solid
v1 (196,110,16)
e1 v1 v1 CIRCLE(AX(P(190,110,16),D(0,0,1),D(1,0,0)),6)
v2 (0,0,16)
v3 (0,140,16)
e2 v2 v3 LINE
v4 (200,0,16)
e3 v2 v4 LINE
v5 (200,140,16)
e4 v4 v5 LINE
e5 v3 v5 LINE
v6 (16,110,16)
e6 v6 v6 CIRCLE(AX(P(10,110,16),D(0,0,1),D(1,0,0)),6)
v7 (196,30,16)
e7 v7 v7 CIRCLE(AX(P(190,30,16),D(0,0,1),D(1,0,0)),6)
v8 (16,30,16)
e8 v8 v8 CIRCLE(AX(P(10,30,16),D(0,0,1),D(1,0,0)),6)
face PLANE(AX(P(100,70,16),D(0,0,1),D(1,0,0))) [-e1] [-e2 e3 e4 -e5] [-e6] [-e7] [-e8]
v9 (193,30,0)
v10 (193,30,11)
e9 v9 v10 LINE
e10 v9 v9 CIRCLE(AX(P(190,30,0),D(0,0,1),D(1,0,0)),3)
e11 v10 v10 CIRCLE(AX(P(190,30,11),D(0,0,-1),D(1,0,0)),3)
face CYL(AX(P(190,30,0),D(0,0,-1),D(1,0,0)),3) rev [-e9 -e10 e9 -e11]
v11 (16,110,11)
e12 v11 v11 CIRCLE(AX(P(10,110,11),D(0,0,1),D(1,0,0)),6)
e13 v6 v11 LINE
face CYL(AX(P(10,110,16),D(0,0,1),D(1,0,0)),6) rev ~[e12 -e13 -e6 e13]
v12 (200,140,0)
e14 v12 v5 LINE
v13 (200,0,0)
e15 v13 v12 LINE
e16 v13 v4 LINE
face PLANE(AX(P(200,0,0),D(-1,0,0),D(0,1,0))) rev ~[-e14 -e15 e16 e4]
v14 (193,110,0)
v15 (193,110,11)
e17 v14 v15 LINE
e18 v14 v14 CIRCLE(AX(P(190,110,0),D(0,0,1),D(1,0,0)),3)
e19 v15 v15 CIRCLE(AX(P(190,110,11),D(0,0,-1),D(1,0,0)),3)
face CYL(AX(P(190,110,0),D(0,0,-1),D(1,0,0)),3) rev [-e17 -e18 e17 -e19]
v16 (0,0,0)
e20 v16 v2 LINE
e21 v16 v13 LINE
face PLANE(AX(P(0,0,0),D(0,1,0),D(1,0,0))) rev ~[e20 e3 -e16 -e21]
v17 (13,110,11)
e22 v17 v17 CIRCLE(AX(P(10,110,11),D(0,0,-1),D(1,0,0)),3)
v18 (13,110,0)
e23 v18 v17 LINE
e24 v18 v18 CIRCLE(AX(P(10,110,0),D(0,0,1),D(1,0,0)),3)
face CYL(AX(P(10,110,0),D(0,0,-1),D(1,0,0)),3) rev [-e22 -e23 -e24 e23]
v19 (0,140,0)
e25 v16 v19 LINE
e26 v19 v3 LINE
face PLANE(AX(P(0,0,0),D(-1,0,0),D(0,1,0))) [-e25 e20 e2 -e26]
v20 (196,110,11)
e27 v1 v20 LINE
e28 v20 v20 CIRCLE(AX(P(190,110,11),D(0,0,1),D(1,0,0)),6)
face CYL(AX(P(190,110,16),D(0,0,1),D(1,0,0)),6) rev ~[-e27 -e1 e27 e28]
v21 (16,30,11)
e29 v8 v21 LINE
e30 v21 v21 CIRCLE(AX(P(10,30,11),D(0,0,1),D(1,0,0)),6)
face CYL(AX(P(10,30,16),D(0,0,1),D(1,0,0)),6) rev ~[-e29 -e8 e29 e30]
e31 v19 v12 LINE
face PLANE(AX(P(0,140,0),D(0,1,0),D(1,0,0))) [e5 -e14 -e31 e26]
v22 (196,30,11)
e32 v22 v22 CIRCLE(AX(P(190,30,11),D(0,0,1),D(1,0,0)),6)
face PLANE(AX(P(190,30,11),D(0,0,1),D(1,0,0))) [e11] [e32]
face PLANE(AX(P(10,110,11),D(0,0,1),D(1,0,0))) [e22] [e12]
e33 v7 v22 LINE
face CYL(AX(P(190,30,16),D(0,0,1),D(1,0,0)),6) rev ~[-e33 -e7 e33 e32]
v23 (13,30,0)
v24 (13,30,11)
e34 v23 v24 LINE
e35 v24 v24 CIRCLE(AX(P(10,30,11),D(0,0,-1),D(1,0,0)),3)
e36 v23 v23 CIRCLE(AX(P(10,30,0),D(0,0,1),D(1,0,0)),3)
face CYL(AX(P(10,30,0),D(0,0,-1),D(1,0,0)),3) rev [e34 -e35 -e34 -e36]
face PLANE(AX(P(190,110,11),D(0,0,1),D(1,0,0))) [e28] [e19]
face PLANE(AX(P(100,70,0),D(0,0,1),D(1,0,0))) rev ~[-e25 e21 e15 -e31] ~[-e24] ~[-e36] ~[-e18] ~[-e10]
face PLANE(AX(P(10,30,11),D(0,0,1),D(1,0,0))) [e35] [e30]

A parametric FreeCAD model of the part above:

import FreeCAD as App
import Part
import Sketcher
from FreeCAD import Vector
Q = App.Units.Quantity

doc = App.newDocument("Part")
body = doc.addObject("PartDesign::Body", "Body")

sketch1 = body.newObject("Sketcher::SketchObject", "Sketch")
sketch1.AttachmentSupport = (doc.getObject("XY_Plane"), [""])
sketch1.MapMode = "FlatFace"
sketch1.addGeometry([
    Part.LineSegment(Vector(0, 140, 0), Vector(0, 0, 0)),
    Part.LineSegment(Vector(0, 0, 0), Vector(200, 0, 0)),
    Part.LineSegment(Vector(200, 0, 0), Vector(200, 140, 0)),
    Part.LineSegment(Vector(200, 140, 0), Vector(0, 140, 0)),
    Part.Circle(Vector(10, 30, 0), Vector(0, 0, 1), 3),
    Part.Circle(Vector(190, 30, 0), Vector(0, 0, 1), 3),
    Part.Circle(Vector(10, 110, 0), Vector(0, 0, 1), 3),
    Part.Circle(Vector(190, 110, 0), Vector(0, 0, 1), 3),
], False)
sketch1.addConstraint([
    Sketcher.Constraint("Coincident", 0, 2, 1, 1),
    Sketcher.Constraint("Coincident", 1, 2, 2, 1),
    Sketcher.Constraint("Coincident", 2, 2, 3, 1),
    Sketcher.Constraint("Coincident", 3, 2, 0, 1),
    Sketcher.Constraint("Vertical", 0),
    Sketcher.Constraint("Horizontal", 1),
    Sketcher.Constraint("Vertical", 2),
    Sketcher.Constraint("Horizontal", 3),
    Sketcher.Constraint("Coincident", 0, 2, -1, 1),
    Sketcher.Constraint("Equal", 4, 5),
    Sketcher.Constraint("Equal", 5, 6),
    Sketcher.Constraint("Equal", 6, 7),
    Sketcher.Constraint("Horizontal", 4, 3, 5, 3),
    Sketcher.Constraint("Horizontal", 6, 3, 7, 3),
    Sketcher.Constraint("Vertical", 4, 3, 6, 3),
    Sketcher.Constraint("Vertical", 5, 3, 7, 3),
    Sketcher.Constraint("Diameter", 4, Q("6 mm")),
    Sketcher.Constraint("DistanceX", 1, 1, 1, 2, Q("200 mm")),
    Sketcher.Constraint("DistanceY", 0, 2, 0, 1, Q("140 mm")),
    Sketcher.Constraint("DistanceX", -1, 1, 4, 3, Q("10 mm")),
    Sketcher.Constraint("DistanceY", -1, 1, 4, 3, Q("30 mm")),
    Sketcher.Constraint("DistanceX", -1, 1, 5, 3, Q("190 mm")),
    Sketcher.Constraint("DistanceY", -1, 1, 6, 3, Q("110 mm")),
])
pad1 = body.newObject("PartDesign::Pad", "Pad")
pad1.Profile = sketch1
pad1.Length = 16

sketch2 = body.newObject("Sketcher::SketchObject", "Sketch001")
sketch2.AttachmentSupport = (doc.getObject("XY_Plane"), [""])
sketch2.MapMode = "FlatFace"
sketch2.AttachmentOffset = App.Placement(Vector(0, 0, 16), App.Rotation())
sketch2.addGeometry([
    Part.Circle(Vector(10, 110, 0), Vector(0, 0, 1), 6),
    Part.Circle(Vector(190, 110, 0), Vector(0, 0, 1), 6),
    Part.Circle(Vector(190, 30, 0), Vector(0, 0, 1), 6),
    Part.Circle(Vector(10, 30, 0), Vector(0, 0, 1), 6),
], False)
sketch2.addConstraint([
    Sketcher.Constraint("Equal", 0, 1),
    Sketcher.Constraint("Equal", 1, 2),
    Sketcher.Constraint("Equal", 2, 3),
    Sketcher.Constraint("Horizontal", 0, 3, 1, 3),
    Sketcher.Constraint("Horizontal", 2, 3, 3, 3),
    Sketcher.Constraint("Vertical", 1, 3, 2, 3),
    Sketcher.Constraint("Vertical", 0, 3, 3, 3),
    Sketcher.Constraint("Diameter", 0, Q("12 mm")),
    Sketcher.Constraint("DistanceX", -1, 1, 0, 3, Q("10 mm")),
    Sketcher.Constraint("DistanceY", -1, 1, 0, 3, Q("110 mm")),
    Sketcher.Constraint("DistanceX", -1, 1, 1, 3, Q("190 mm")),
    Sketcher.Constraint("DistanceY", -1, 1, 2, 3, Q("30 mm")),
])
pocket1 = body.newObject("PartDesign::Pocket", "Pocket")
pocket1.Profile = sketch2
pocket1.Length = 5

doc.recompute()
